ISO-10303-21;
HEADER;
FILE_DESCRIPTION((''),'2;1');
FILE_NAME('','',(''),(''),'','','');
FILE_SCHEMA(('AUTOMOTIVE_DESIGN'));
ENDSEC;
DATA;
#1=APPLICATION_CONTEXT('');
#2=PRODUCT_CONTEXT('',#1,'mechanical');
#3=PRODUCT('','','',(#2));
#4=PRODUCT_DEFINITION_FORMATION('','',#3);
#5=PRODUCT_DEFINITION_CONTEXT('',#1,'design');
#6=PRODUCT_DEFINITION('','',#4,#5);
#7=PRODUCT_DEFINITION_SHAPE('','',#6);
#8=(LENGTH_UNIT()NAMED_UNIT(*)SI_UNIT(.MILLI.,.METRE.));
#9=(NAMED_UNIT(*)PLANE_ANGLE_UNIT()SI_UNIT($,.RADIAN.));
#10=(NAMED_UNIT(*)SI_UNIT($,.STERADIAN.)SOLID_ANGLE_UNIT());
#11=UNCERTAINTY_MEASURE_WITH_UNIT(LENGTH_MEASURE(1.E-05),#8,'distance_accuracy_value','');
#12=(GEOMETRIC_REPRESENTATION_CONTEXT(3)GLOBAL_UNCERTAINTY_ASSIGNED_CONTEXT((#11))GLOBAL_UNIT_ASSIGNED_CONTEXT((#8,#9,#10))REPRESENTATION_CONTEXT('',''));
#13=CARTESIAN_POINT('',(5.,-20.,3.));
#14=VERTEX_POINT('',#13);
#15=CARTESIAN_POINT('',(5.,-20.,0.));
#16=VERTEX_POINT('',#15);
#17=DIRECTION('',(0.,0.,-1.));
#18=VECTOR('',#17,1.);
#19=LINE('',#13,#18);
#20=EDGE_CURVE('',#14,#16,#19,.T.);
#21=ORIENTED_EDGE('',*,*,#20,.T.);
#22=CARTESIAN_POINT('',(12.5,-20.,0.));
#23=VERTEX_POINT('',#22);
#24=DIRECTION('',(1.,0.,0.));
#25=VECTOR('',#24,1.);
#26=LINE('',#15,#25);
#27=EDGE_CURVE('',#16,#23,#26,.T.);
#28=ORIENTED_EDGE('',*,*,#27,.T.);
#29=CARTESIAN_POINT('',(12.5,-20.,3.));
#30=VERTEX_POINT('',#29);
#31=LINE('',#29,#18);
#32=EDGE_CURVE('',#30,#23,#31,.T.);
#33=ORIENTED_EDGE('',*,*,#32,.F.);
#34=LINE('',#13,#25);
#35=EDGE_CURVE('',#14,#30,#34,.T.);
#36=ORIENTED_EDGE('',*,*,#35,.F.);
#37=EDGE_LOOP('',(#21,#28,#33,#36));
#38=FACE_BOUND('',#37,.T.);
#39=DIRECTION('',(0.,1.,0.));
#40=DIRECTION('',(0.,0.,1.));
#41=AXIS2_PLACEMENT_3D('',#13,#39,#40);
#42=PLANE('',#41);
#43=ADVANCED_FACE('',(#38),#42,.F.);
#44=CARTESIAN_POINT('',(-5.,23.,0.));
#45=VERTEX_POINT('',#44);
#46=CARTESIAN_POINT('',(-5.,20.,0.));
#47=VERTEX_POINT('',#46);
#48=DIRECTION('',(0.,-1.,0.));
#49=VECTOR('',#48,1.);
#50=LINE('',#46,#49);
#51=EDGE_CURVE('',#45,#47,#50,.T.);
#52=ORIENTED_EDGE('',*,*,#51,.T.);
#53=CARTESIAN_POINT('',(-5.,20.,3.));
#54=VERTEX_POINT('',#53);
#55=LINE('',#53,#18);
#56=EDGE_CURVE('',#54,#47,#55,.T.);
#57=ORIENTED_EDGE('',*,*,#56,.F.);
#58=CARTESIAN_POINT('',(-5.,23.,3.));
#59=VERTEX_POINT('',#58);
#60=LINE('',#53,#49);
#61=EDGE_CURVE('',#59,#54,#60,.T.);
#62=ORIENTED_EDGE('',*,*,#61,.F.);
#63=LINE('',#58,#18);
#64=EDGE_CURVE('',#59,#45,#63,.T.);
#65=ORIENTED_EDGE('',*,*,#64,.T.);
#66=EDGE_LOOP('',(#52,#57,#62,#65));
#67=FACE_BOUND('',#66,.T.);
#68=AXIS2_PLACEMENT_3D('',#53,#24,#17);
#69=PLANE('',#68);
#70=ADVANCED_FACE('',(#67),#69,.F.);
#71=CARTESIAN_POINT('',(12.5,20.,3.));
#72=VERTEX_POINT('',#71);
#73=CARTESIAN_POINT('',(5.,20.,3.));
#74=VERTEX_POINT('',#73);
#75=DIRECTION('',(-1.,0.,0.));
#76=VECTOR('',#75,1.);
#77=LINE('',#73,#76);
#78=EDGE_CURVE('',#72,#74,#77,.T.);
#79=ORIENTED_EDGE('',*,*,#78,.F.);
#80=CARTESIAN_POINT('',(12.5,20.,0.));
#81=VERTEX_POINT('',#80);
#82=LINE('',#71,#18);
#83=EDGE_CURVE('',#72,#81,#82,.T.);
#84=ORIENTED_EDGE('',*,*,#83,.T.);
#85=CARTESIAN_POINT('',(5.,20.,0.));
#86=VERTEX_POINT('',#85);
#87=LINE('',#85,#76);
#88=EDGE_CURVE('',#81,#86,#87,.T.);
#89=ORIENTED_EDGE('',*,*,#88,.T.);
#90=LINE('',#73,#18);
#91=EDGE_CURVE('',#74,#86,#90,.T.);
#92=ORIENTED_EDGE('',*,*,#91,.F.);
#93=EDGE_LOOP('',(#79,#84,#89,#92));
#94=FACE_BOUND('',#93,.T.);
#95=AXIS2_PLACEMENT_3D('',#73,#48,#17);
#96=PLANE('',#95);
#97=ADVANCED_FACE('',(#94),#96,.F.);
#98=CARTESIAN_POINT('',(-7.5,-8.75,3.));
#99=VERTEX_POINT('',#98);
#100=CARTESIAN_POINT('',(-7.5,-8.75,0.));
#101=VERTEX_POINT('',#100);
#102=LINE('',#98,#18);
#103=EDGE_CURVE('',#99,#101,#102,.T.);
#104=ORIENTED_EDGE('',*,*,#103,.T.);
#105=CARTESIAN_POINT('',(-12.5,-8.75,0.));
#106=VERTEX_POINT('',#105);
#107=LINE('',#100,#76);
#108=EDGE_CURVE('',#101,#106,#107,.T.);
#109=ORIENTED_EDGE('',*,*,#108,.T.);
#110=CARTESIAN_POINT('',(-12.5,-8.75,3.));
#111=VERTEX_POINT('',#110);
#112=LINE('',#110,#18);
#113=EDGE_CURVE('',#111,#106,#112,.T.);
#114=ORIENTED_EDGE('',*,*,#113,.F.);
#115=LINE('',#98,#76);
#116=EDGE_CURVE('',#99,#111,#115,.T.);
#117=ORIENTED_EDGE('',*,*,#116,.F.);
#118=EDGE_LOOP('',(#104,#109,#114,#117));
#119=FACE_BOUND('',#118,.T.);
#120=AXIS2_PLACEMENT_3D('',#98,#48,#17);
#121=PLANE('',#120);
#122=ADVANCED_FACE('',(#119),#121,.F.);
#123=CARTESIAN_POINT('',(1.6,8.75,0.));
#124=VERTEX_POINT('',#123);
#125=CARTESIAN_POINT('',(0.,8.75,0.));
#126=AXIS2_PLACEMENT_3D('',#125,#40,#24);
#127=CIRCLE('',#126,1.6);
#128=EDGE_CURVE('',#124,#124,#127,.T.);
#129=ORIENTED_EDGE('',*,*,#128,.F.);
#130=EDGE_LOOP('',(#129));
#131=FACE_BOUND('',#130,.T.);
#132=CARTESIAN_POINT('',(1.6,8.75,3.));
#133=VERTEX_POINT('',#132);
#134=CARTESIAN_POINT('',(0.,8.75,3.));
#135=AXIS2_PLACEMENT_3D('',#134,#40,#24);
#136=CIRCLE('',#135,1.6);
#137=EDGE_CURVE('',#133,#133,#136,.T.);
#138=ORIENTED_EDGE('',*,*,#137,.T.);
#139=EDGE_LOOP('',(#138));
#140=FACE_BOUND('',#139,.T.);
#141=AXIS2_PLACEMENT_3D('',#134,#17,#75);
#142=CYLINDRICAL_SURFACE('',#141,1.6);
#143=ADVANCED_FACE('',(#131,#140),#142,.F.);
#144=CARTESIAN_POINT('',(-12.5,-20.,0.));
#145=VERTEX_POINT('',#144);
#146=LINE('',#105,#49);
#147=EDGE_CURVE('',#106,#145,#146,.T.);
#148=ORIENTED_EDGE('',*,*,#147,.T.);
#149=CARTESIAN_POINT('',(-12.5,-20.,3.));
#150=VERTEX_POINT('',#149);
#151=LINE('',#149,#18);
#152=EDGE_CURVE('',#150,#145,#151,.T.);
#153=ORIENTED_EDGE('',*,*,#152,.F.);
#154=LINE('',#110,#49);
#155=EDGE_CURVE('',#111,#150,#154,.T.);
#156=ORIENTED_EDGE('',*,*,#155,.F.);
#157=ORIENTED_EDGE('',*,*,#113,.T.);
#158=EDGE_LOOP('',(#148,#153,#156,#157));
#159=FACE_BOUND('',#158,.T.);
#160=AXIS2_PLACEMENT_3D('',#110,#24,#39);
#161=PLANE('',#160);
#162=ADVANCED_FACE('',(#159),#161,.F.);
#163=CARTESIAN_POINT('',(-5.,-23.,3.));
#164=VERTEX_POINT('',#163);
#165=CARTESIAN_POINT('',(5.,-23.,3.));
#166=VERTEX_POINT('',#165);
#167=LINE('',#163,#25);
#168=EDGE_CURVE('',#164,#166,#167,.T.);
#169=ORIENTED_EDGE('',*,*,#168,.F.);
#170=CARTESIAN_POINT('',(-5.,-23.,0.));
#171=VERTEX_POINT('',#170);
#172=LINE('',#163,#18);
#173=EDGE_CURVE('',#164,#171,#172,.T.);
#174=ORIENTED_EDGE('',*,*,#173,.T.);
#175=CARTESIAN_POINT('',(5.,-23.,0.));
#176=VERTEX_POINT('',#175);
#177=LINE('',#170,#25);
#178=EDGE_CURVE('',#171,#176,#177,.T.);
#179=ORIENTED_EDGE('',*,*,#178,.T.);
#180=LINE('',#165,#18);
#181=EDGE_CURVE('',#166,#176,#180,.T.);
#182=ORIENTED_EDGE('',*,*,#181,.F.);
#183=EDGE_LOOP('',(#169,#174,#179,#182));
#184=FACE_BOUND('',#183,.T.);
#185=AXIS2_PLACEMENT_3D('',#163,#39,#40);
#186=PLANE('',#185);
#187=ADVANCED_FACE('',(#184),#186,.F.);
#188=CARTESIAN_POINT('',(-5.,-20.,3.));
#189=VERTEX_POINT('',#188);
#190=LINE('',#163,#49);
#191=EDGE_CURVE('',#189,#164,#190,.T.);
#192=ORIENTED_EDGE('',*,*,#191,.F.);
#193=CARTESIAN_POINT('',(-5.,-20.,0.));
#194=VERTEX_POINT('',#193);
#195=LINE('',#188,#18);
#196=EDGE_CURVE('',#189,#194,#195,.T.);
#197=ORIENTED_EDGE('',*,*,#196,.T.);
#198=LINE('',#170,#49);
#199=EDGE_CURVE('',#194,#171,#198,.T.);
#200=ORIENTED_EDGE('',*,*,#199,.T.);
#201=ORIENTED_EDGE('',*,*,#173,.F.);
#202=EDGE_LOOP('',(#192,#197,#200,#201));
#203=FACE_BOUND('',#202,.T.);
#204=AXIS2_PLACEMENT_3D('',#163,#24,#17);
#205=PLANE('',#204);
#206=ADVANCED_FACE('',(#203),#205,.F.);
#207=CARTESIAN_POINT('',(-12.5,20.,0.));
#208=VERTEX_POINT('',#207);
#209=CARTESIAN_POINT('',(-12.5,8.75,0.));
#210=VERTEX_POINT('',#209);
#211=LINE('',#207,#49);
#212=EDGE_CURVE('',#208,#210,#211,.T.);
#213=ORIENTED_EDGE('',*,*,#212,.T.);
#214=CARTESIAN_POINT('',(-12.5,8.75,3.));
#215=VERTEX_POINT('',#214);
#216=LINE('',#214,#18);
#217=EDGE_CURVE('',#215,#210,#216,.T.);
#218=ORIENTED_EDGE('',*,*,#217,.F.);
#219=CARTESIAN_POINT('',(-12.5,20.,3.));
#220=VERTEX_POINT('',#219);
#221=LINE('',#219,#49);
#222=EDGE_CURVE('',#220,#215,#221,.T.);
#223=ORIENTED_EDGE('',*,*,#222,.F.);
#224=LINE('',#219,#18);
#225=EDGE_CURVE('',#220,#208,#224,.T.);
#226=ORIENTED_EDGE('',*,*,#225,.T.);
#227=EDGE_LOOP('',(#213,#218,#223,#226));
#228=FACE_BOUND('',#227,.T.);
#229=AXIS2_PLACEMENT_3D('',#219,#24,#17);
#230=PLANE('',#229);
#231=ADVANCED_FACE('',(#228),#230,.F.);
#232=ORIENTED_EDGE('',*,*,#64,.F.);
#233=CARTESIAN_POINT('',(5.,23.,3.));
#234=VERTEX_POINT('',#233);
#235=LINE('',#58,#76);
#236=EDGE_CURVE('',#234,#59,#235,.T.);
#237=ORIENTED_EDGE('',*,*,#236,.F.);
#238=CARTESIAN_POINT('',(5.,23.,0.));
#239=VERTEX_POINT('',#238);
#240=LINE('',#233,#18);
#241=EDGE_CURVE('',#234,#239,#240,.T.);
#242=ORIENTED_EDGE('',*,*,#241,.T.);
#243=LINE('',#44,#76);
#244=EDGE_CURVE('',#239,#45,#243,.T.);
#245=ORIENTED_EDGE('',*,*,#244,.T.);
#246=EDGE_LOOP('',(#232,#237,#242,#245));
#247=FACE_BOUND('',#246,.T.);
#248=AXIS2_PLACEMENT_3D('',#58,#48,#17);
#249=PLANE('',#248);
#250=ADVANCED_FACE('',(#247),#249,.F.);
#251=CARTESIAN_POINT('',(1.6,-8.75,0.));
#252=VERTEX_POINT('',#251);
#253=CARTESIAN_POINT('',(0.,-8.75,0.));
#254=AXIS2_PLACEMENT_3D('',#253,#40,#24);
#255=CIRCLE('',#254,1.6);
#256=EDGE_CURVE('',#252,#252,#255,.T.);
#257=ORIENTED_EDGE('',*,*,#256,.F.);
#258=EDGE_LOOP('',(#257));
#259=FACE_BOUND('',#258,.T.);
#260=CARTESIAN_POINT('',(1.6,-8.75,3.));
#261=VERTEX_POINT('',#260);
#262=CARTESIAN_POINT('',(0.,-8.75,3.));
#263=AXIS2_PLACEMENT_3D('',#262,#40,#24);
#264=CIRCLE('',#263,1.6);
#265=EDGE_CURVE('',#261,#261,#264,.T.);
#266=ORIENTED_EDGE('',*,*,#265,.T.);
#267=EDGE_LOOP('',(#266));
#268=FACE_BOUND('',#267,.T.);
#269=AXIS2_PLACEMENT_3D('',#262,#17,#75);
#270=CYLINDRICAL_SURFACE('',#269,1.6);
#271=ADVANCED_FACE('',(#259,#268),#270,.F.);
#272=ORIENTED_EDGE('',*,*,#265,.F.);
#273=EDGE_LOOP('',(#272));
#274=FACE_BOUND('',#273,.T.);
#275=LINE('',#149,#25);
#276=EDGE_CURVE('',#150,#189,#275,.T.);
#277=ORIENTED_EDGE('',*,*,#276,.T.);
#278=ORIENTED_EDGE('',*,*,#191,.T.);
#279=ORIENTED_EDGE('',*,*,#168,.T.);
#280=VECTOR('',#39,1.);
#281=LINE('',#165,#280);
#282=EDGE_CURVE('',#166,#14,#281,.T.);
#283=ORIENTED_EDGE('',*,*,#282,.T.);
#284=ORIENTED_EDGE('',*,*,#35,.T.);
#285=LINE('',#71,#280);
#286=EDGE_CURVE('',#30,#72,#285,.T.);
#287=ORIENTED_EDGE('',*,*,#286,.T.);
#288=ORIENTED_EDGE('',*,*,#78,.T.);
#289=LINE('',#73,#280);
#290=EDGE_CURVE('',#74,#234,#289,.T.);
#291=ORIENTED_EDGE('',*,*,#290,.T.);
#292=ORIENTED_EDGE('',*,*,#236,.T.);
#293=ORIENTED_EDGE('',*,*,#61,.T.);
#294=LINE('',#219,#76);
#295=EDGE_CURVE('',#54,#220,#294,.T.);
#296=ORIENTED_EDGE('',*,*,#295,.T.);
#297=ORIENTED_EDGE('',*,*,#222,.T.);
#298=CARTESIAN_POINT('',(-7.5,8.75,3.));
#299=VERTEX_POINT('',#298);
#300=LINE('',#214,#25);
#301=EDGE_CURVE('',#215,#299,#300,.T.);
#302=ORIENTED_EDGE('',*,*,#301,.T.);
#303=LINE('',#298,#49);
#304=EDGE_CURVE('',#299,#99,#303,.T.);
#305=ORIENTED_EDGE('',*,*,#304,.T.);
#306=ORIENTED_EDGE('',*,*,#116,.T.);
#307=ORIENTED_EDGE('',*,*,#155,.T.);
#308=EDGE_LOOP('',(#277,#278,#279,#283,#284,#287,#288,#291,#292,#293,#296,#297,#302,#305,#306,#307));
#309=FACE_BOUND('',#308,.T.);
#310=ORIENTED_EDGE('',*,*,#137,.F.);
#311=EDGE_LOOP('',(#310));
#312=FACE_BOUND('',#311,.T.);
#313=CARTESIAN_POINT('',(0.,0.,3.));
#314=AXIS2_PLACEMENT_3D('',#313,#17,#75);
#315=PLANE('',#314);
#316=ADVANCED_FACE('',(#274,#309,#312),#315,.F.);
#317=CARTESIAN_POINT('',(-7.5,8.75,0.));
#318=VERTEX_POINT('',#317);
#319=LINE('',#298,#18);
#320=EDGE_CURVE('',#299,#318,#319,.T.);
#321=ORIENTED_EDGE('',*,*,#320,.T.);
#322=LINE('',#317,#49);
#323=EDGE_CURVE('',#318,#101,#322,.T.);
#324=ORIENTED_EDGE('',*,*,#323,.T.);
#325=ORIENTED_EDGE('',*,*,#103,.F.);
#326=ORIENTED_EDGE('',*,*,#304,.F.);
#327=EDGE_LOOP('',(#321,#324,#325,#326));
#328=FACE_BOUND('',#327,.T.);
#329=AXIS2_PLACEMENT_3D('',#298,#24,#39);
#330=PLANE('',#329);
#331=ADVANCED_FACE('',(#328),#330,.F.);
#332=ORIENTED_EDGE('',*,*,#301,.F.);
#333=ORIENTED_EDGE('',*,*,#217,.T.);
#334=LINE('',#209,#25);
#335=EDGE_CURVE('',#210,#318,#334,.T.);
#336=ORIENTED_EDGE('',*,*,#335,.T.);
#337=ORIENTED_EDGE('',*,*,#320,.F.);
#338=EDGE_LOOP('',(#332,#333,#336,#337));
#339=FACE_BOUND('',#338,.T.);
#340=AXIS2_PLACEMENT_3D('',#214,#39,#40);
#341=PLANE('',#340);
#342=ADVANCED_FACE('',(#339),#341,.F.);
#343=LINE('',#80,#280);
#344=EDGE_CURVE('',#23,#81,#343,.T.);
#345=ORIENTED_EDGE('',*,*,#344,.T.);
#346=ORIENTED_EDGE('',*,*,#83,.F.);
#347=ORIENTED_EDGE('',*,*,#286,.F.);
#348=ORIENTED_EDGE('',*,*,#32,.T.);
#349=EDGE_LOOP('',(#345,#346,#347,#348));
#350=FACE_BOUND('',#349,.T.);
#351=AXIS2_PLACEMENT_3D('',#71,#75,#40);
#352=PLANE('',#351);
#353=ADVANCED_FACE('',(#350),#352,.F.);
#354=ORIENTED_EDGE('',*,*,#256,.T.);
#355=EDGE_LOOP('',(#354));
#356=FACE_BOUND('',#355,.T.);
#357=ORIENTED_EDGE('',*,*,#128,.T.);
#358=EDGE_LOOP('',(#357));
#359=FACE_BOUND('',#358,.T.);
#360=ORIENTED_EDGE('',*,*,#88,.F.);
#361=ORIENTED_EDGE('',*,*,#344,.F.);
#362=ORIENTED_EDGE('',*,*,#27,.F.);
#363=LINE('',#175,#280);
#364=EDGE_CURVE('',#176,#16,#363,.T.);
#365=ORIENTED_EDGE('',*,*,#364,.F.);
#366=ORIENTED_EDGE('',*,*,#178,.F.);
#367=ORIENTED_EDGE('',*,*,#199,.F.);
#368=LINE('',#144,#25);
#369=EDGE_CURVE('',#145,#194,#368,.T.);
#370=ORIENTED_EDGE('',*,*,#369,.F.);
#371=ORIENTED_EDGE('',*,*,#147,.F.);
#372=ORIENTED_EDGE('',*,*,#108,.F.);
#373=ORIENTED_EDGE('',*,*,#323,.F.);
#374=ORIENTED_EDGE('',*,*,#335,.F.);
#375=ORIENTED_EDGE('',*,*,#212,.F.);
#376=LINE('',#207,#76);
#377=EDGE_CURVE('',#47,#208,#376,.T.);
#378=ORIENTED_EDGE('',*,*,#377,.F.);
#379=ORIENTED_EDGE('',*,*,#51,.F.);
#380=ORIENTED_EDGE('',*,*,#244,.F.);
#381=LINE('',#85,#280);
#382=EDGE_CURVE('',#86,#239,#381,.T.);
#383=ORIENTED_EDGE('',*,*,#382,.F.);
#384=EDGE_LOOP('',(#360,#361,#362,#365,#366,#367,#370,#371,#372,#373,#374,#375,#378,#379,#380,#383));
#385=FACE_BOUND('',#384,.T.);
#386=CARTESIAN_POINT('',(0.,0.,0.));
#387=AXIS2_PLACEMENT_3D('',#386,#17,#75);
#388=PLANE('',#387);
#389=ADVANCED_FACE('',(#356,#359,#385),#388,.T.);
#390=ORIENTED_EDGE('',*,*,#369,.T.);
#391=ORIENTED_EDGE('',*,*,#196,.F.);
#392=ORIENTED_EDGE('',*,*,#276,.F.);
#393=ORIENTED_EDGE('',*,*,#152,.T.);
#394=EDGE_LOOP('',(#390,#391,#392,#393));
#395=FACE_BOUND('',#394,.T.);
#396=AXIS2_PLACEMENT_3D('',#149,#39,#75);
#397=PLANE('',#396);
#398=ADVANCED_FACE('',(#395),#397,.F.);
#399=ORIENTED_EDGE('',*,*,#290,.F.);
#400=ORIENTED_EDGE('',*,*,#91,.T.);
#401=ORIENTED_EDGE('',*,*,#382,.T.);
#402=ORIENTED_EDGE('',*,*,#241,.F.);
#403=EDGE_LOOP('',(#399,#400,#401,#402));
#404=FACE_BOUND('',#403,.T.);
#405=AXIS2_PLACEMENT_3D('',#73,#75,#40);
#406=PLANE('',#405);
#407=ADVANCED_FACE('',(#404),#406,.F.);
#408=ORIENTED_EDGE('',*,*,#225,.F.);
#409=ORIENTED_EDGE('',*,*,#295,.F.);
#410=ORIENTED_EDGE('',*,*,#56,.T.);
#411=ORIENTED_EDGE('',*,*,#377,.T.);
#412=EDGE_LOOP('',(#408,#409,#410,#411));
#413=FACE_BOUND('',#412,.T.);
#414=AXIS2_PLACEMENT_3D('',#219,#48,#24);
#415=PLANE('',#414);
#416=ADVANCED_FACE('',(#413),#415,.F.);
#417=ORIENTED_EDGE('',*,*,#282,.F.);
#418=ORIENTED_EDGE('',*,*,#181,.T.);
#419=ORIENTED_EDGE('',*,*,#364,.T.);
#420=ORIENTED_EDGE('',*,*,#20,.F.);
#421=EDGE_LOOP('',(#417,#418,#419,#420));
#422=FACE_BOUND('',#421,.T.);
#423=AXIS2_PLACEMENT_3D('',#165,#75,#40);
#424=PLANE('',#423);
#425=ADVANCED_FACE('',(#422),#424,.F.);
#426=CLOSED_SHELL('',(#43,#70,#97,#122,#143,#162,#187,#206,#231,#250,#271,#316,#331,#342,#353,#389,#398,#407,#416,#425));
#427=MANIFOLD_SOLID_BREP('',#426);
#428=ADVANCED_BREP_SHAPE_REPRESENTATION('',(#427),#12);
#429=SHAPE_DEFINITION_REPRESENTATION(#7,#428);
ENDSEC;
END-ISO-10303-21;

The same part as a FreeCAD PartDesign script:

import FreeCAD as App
import Part
import Sketcher
Q = App.Units.Quantity

doc = App.newDocument("Part")
body = doc.addObject("PartDesign::Body", "Body")

sketch1 = body.newObject("Sketcher::SketchObject", "Sketch")
sketch1.AttachmentSupport = (doc.getObject("XY_Plane"), [""])
sketch1.MapMode = "FlatFace"
sketch1.addGeometry([
    Part.LineSegment(App.Vector(-5, 23, 0), App.Vector(-5, 20, 0)),
    Part.LineSegment(App.Vector(-5, 20, 0), App.Vector(-12.5, 20, 0)),
    Part.LineSegment(App.Vector(-12.5, 20, 0), App.Vector(-12.5, 8.8, 0)),
    Part.LineSegment(App.Vector(-12.5, 8.8, 0), App.Vector(-7.5, 8.8, 0)),
    Part.LineSegment(App.Vector(-7.5, 8.8, 0), App.Vector(-7.5, -8.8, 0)),
    Part.LineSegment(App.Vector(-7.5, -8.8, 0), App.Vector(-12.5, -8.8, 0)),
    Part.LineSegment(App.Vector(-12.5, -8.8, 0), App.Vector(-12.5, -20, 0)),
    Part.LineSegment(App.Vector(-12.5, -20, 0), App.Vector(-5, -20, 0)),
    Part.LineSegment(App.Vector(-5, -20, 0), App.Vector(-5, -23, 0)),
    Part.LineSegment(App.Vector(-5, -23, 0), App.Vector(5, -23, 0)),
    Part.LineSegment(App.Vector(5, -23, 0), App.Vector(5, -20, 0)),
    Part.LineSegment(App.Vector(5, -20, 0), App.Vector(12.5, -20, 0)),
    Part.LineSegment(App.Vector(12.5, -20, 0), App.Vector(12.5, 20, 0)),
    Part.LineSegment(App.Vector(12.5, 20, 0), App.Vector(5, 20, 0)),
    Part.LineSegment(App.Vector(5, 20, 0), App.Vector(5, 23, 0)),
    Part.LineSegment(App.Vector(5, 23, 0), App.Vector(-5, 23, 0)),
    Part.Circle(App.Vector(0, -8.8, 0), App.Vector(0, 0, 1), 1.6),
    Part.Circle(App.Vector(0, 8.8, 0), App.Vector(0, 0, 1), 1.6),
], False)
sketch1.addConstraint([
    Sketcher.Constraint("Coincident", 0, 2, 1, 1),
    Sketcher.Constraint("Coincident", 1, 2, 2, 1),
    Sketcher.Constraint("Coincident", 2, 2, 3, 1),
    Sketcher.Constraint("Coincident", 3, 2, 4, 1),
    Sketcher.Constraint("Coincident", 4, 2, 5, 1),
    Sketcher.Constraint("Coincident", 5, 2, 6, 1),
    Sketcher.Constraint("Coincident", 6, 2, 7, 1),
    Sketcher.Constraint("Coincident", 7, 2, 8, 1),
    Sketcher.Constraint("Coincident", 8, 2, 9, 1),
    Sketcher.Constraint("Coincident", 9, 2, 10, 1),
    Sketcher.Constraint("Coincident", 10, 2, 11, 1),
    Sketcher.Constraint("Coincident", 11, 2, 12, 1),
    Sketcher.Constraint("Coincident", 12, 2, 13, 1),
    Sketcher.Constraint("Coincident", 13, 2, 14, 1),
    Sketcher.Constraint("Coincident", 14, 2, 15, 1),
    Sketcher.Constraint("Coincident", 15, 2, 0, 1),
    Sketcher.Constraint("Vertical", 0),
    Sketcher.Constraint("Horizontal", 1),
    Sketcher.Constraint("Vertical", 2),
    Sketcher.Constraint("Horizontal", 3),
    Sketcher.Constraint("Vertical", 4),
    Sketcher.Constraint("Horizontal", 5),
    Sketcher.Constraint("Vertical", 6),
    Sketcher.Constraint("Horizontal", 7),
    Sketcher.Constraint("Vertical", 8),
    Sketcher.Constraint("Horizontal", 9),
    Sketcher.Constraint("Vertical", 10),
    Sketcher.Constraint("Horizontal", 11),
    Sketcher.Constraint("Vertical", 12),
    Sketcher.Constraint("Horizontal", 13),
    Sketcher.Constraint("Vertical", 14),
    Sketcher.Constraint("Horizontal", 15),
    Sketcher.Constraint("Equal", 16, 17),
    Sketcher.Constraint("Symmetric", 16, 3, 17, 3, -1, 1),
    Sketcher.Constraint("Symmetric", 0, 2, 10, 2, -1, 1),
    Sketcher.Constraint("Symmetric", 6, 2, 12, 2, -1, 1),
    Sketcher.Constraint("Symmetric", 8, 2, 14, 2, -1, 1),
    Sketcher.Constraint("Symmetric", 7, 2, 10, 2, -2),
    Sketcher.Constraint("Symmetric", 2, 2, 5, 2, -1),
    Sketcher.Constraint("PointOnObject", 16, 3, -2),
    Sketcher.Constraint("Horizontal", 17, 3, 2, 2),
    Sketcher.Constraint("Diameter", 16, Q("3.2 mm")),
    Sketcher.Constraint("DistanceX", 3, 1, 3, 2, Q("5 mm")),
    Sketcher.Constraint("DistanceX", 9, 1, 9, 2, Q("10 mm")),
    Sketcher.Constraint("DistanceY", 0, 2, 0, 1, Q("3 mm")),
    Sketcher.Constraint("DistanceY", 12, 1, 12, 2, Q("40 mm")),
    Sketcher.Constraint("DistanceX", 1, 2, 1, 1, Q("7.5 mm")),
    Sketcher.Constraint("DistanceY", 4, 2, 4, 1, Q("17.5 mm")),
])
pad1 = body.newObject("PartDesign::Pad", "Pad")
pad1.Profile = sketch1
pad1.Length = 3

doc.recompute()
